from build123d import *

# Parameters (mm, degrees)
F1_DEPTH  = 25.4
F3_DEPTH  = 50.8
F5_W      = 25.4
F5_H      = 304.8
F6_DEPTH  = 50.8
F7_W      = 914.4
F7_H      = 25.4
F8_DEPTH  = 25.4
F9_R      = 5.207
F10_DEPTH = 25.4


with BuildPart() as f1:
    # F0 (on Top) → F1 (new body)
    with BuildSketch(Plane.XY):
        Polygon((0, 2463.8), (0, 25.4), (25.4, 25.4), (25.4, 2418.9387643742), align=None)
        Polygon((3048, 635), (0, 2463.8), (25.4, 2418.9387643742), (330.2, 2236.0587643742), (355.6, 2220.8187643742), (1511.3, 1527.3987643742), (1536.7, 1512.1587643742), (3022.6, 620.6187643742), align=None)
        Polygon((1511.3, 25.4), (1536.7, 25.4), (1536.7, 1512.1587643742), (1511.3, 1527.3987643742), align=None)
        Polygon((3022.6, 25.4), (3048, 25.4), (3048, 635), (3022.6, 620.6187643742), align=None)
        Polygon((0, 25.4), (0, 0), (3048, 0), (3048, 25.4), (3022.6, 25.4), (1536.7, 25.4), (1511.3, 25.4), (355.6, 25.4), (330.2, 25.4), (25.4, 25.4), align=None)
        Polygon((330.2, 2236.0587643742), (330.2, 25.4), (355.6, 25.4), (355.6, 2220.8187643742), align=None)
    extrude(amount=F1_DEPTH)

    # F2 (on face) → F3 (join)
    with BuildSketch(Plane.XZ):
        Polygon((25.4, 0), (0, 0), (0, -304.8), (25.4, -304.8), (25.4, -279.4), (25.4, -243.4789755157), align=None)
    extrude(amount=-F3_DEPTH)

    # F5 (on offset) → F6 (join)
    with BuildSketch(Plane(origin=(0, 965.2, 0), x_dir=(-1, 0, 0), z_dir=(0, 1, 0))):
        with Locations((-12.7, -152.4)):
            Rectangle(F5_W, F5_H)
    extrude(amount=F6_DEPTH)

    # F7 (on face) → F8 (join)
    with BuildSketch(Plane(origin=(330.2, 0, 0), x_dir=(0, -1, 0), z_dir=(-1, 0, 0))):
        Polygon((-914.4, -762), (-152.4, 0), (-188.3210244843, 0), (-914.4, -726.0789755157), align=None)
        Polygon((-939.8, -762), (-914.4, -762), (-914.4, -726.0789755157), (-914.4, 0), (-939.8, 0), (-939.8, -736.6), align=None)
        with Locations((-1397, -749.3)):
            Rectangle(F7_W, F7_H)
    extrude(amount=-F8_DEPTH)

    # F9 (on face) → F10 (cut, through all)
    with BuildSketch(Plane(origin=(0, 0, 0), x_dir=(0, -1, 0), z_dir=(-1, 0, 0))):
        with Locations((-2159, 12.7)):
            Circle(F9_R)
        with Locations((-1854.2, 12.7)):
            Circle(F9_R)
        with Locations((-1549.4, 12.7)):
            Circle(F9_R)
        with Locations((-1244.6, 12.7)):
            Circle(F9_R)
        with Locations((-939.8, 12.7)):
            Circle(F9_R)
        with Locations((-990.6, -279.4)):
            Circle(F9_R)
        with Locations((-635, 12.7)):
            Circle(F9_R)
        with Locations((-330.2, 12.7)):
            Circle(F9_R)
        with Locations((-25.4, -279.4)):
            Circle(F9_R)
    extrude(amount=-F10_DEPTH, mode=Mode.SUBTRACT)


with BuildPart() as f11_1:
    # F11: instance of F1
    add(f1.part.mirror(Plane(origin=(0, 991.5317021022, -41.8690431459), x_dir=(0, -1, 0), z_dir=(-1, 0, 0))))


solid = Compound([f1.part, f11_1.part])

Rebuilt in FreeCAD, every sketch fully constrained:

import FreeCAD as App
import Part
import Sketcher
from FreeCAD import Vector
Q = App.Units.Quantity


def add_polygon(sketch, points):
    """Adds a closed chain of lines whose ends are joined by coincident constraints."""
    first, n = sketch.GeometryCount, len(points)
    for a, b in zip(points, points[1:] + points[:1]):
        sketch.addGeometry(Part.LineSegment(App.Vector(*a, 0), App.Vector(*b, 0)), False)
    for i in range(n):
        sketch.addConstraint(Sketcher.Constraint("Coincident", first + i, 2, first + (i + 1) % n, 1))

doc = App.newDocument("Part")
body = doc.addObject("PartDesign::Body", "Body")

# Sketch on XY plane
sketch1 = body.newObject("Sketcher::SketchObject", "Sketch")
sketch1.AttachmentSupport = (doc.getObject("XY_Plane"), [""])
sketch1.MapMode = "FlatFace"
add_polygon(sketch1, [(0, 2464), (0, 0), (3048, 0), (3048, 635)])  # lines 0-3
add_polygon(sketch1, [(25, 25), (25, 2419), (330, 2236), (330, 25)])  # lines 4-7
add_polygon(sketch1, [(356, 2221), (1511, 1527), (1511, 25), (356, 25)])  # lines 8-11
add_polygon(sketch1, [(1537, 25), (1537, 1512), (3023, 621), (3023, 25)])  # lines 12-15
sketch1.addConstraint([
    Sketcher.Constraint("Vertical", 0),
    Sketcher.Constraint("Horizontal", 1),
    Sketcher.Constraint("Vertical", 2),
    Sketcher.Constraint("Vertical", 4),
    Sketcher.Constraint("Vertical", 6),
    Sketcher.Constraint("Horizontal", 7),
    Sketcher.Constraint("Vertical", 9),
    Sketcher.Constraint("Horizontal", 10),
    Sketcher.Constraint("Vertical", 11),
    Sketcher.Constraint("Vertical", 12),
    Sketcher.Constraint("Vertical", 14),
    Sketcher.Constraint("Horizontal", 15),
    Sketcher.Constraint("Coincident", 0, 2, -1, 1),
    Sketcher.Constraint("Parallel", 3, 5),
    Sketcher.Constraint("Parallel", 5, 8),
    Sketcher.Constraint("Parallel", 8, 13),
    Sketcher.Constraint("Horizontal", 7, 2, 9, 2),
    Sketcher.Constraint("Horizontal", 10, 2, 14, 2),
    Sketcher.Constraint("DistanceX", 1, 1, 1, 2, Q("120 in")),
    Sketcher.Constraint("DistanceX", 7, 2, 7, 1, Q("12 in")),
    Sketcher.Constraint("DistanceY", 0, 2, 0, 1, Q("97 in")),
    Sketcher.Constraint("DistanceY", 2, 1, 2, 2, Q("25 in")),
    Sketcher.Constraint("DistanceX", 10, 2, 10, 1, Q("45.5 in")),
    Sketcher.Constraint("DistanceX", 15, 2, 15, 1, Q("58.5 in")),
    Sketcher.Constraint("DistanceX", -1, 1, 4, 2, Q("1 in")),
    Sketcher.Constraint("DistanceY", -1, 1, 6, 2, Q("1 in")),
    Sketcher.Constraint("DistanceX", -1, 1, 10, 2, Q("14 in")),
    Sketcher.Constraint("DistanceX", -1, 1, 13, 2, Q("119 in")),
    Sketcher.Constraint("DistanceY", 8, 2, 5, 2, Q("27.9 in")),
    Sketcher.Constraint("DistanceY", 12, 2, 8, 2, Q("0.6 in")),
    Sketcher.Constraint("DistanceY", 4, 1, 4, 2, 2393.538764),
])
pad1 = body.newObject("PartDesign::Pad", "Pad")
pad1.Profile = sketch1
pad1.Length = Q("1 in")

# Sketch on XZ plane
sketch2 = body.newObject("Sketcher::SketchObject", "Sketch001")
sketch2.AttachmentSupport = (doc.getObject("XZ_Plane"), [""])
sketch2.MapMode = "FlatFace"
add_polygon(sketch2, [(25, 0), (0, 0), (0, -305), (25, -305)])  # lines 0-3
sketch2.addConstraint([
    Sketcher.Constraint("Horizontal", 0),
    Sketcher.Constraint("Vertical", 1),
    Sketcher.Constraint("Horizontal", 2),
    Sketcher.Constraint("Vertical", 3),
    Sketcher.Constraint("Coincident", 0, 2, -1, 1),
    Sketcher.Constraint("DistanceX", 0, 2, 0, 1, Q("1 in")),
    Sketcher.Constraint("DistanceY", 1, 2, 1, 1, Q("12 in")),
])
pad2 = body.newObject("PartDesign::Pad", "Pad001")
pad2.Profile = sketch2
pad2.Length = Q("2 in")
pad2.Reversed = True

# Sketch on XZ plane
sketch3 = body.newObject("Sketcher::SketchObject", "Sketch002")
sketch3.AttachmentSupport = (doc.getObject("XZ_Plane"), [""])
sketch3.MapMode = "FlatFace"
sketch3.AttachmentOffset = App.Placement(Vector(0, 0, -38 * 25.4), App.Rotation())
add_polygon(sketch3, [(25, 0), (25, -305), (0, -305), (0, 0)])  # lines 0-3
sketch3.addConstraint([
    Sketcher.Constraint("Vertical", 0),
    Sketcher.Constraint("Horizontal", 1),
    Sketcher.Constraint("Vertical", 2),
    Sketcher.Constraint("Horizontal", 3),
    Sketcher.Constraint("Coincident", 2, 2, -1, 1),
    Sketcher.Constraint("DistanceX", 1, 2, 1, 1, Q("1 in")),
    Sketcher.Constraint("DistanceY", 0, 2, 0, 1, Q("12 in")),
])
pad3 = body.newObject("PartDesign::Pad", "Pad002")
pad3.Profile = sketch3
pad3.Length = Q("2 in")
pad3.Reversed = True

# Sketch on YZ plane
sketch4 = body.newObject("Sketcher::SketchObject", "Sketch003")
sketch4.AttachmentSupport = (doc.getObject("YZ_Plane"), [""])
sketch4.MapMode = "FlatFace"
sketch4.AttachmentOffset = App.Placement(Vector(0, 0, 13 * 25.4), App.Rotation())
add_polygon(sketch4, [(914, -762), (152, 0), (188, 0), (914, -726), (914, 0), (940, 0), (940, -737), (1854, -737), (1854, -762)])  # lines 0-8
sketch4.addConstraint([
    Sketcher.Constraint("Horizontal", 1),
    Sketcher.Constraint("Vertical", 3),
    Sketcher.Constraint("Horizontal", 4),
    Sketcher.Constraint("Vertical", 5),
    Sketcher.Constraint("Horizontal", 6),
    Sketcher.Constraint("Vertical", 7),
    Sketcher.Constraint("Horizontal", 8),
    Sketcher.Constraint("PointOnObject", 0, 2, -1),
    Sketcher.Constraint("PointOnObject", 3, 2, -1),
    Sketcher.Constraint("Parallel", 0, 2),
    Sketcher.Constraint("Vertical", 3, 2, 8, 2),
    Sketcher.Constraint("Equal", 4, 7),
    Sketcher.Constraint("DistanceX", 4, 1, 4, 2, Q("1 in")),
    Sketcher.Constraint("DistanceX", 6, 1, 6, 2, Q("36 in")),
    Sketcher.Constraint("DistanceY", 5, 2, 5, 1, Q("29 in")),
    Sketcher.Constraint("DistanceX", -1, 1, 0, 2, Q("6 in")),
    Sketcher.Constraint("DistanceX", -1, 1, 2, 2, Q("36 in")),
    Sketcher.Constraint("DistanceX", 1, 1, 1, 2, 35.921024),
])
pad4 = body.newObject("PartDesign::Pad", "Pad003")
pad4.Profile = sketch4
pad4.Length = Q("1 in")

# Sketch on YZ plane
sketch5 = body.newObject("Sketcher::SketchObject", "Sketch004")
sketch5.AttachmentSupport = (doc.getObject("YZ_Plane"), [""])
sketch5.MapMode = "FlatFace"
sketch5.addGeometry([
    Part.Circle(Vector(2159, 13, 0), Vector(0, 0, 1), 5),  # 0
    Part.Circle(Vector(1854, 13, 0), Vector(0, 0, 1), 5),  # 1
    Part.Circle(Vector(1549, 13, 0), Vector(0, 0, 1), 5),  # 2
    Part.Circle(Vector(1245, 13, 0), Vector(0, 0, 1), 5),  # 3
    Part.Circle(Vector(940, 13, 0), Vector(0, 0, 1), 5),  # 4
    Part.Circle(Vector(991, -279, 0), Vector(0, 0, 1), 5),  # 5
    Part.Circle(Vector(635, 13, 0), Vector(0, 0, 1), 5),  # 6
    Part.Circle(Vector(330, 13, 0), Vector(0, 0, 1), 5),  # 7
    Part.Circle(Vector(25, -279, 0), Vector(0, 0, 1), 5),  # 8
], False)
sketch5.addConstraint([
    Sketcher.Constraint("Equal", 0, 1),
    Sketcher.Constraint("Equal", 1, 2),
    Sketcher.Constraint("Equal", 2, 3),
    Sketcher.Constraint("Equal", 3, 4),
    Sketcher.Constraint("Equal", 4, 5),
    Sketcher.Constraint("Equal", 5, 6),
    Sketcher.Constraint("Equal", 6, 7),
    Sketcher.Constraint("Equal", 7, 8),
    Sketcher.Constraint("Horizontal", 0, 3, 1, 3),
    Sketcher.Constraint("Horizontal", 1, 3, 2, 3),
    Sketcher.Constraint("Horizontal", 2, 3, 3, 3),
    Sketcher.Constraint("Horizontal", 3, 3, 4, 3),
    Sketcher.Constraint("Horizontal", 4, 3, 6, 3),
    Sketcher.Constraint("Horizontal", 6, 3, 7, 3),
    Sketcher.Constraint("Horizontal", 5, 3, 8, 3),
    Sketcher.Constraint("Diameter", 0, Q("0.41 in")),
    Sketcher.Constraint("DistanceX", -1, 1, 0, 3, Q("85 in")),
    Sketcher.Constraint("DistanceX", -1, 1, 1, 3, Q("73 in")),
    Sketcher.Constraint("DistanceX", -1, 1, 2, 3, Q("61 in")),
    Sketcher.Constraint("DistanceX", -1, 1, 3, 3, Q("49 in")),
    Sketcher.Constraint("DistanceX", -1, 1, 4, 3, Q("37 in")),
    Sketcher.Constraint("DistanceX", -1, 1, 5, 3, Q("39 in")),
    Sketcher.Constraint("DistanceY", 5, 3, -1, 1, Q("11 in")),
    Sketcher.Constraint("DistanceX", -1, 1, 6, 3, Q("25 in")),
    Sketcher.Constraint("DistanceX", -1, 1, 7, 3, Q("13 in")),
    Sketcher.Constraint("DistanceX", -1, 1, 8, 3, Q("1 in")),
    Sketcher.Constraint("DistanceY", -1, 1, 0, 3, Q("0.5 in")),
])
pocket1 = body.newObject("PartDesign::Pocket", "Pocket")
pocket1.Profile = sketch5
pocket1.Length = Q("1 in")
pocket1.Reversed = True
body2 = doc.addObject("PartDesign::Body", "Body001")
doc.recompute()

mirroring = doc.addObject("Part::Mirroring", "Mirroring")
mirroring.Source = body
mirroring.Base = Vector(0, 991.531702, -41.869043)
mirroring.Normal = Vector(-1, 0, 0)
body2.BaseFeature = mirroring
doc.recompute()
mirroring.Visibility = False

doc.recompute()
